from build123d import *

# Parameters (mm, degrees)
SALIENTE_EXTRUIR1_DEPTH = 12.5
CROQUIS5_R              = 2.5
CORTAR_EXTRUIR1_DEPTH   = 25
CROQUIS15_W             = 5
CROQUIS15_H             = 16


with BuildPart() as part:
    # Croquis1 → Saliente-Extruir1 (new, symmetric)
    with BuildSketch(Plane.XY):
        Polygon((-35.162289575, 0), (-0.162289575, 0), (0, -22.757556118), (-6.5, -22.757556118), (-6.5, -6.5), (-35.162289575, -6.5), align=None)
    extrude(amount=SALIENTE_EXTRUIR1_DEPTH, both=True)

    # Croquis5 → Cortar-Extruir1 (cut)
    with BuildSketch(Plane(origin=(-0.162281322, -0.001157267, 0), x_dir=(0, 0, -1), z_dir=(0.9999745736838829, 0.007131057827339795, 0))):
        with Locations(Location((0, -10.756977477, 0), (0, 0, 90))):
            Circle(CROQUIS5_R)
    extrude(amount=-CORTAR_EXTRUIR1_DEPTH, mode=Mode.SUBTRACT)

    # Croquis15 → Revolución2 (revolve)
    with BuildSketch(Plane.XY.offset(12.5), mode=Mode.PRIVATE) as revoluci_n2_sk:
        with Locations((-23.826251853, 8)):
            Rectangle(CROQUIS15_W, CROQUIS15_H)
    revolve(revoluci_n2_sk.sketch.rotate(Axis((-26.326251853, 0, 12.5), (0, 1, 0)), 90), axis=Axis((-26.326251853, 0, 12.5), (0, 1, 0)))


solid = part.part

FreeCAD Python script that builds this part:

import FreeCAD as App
import Part
import Sketcher
from FreeCAD import Vector

doc = App.newDocument("Part")
params = doc.addObject("Spreadsheet::Sheet", "Params")
for row, (alias, value) in enumerate([
    ("sketch1_width", "35 mm"),
    ("sketch1_width2", "6.5 mm"),
    ("pad1_length", "25 mm"),
    ("sketch2_diameter", "5 mm"),
    ("pocket1_length", "25 mm"),
    ("sketch3_width", "5 mm"),
    ("sketch3_height", "16 mm"),
    ("revolution_angle", "360 deg"),
], start=1):
    params.set(f"A{row}", alias)
    params.set(f"B{row}", "=" + value)
    params.setAlias(f"B{row}", alias)

body = doc.addObject("PartDesign::Body", "Body")

sketch1 = body.newObject("Sketcher::SketchObject", "Sketch")
sketch1.AttachmentSupport = (doc.getObject("XY_Plane"), [""])
sketch1.MapMode = "FlatFace"
sketch1.addGeometry(Part.LineSegment(Vector(0, 0, 0), Vector(-35, 0, 0)), False)
sketch1.addGeometry(Part.LineSegment(Vector(-35, 0, 0), Vector(-35, -6, 0)), False)
sketch1.addGeometry(Part.LineSegment(Vector(-35, -6, 0), Vector(-6, -6, 0)), False)
sketch1.addGeometry(Part.LineSegment(Vector(-6, -6, 0), Vector(-6, -23, 0)), False)
sketch1.addGeometry(Part.LineSegment(Vector(-6, -23, 0), Vector(0, -23, 0)), False)
sketch1.addGeometry(Part.LineSegment(Vector(0, -23, 0), Vector(0, 0, 0)), False)
sketch1.addConstraint(Sketcher.Constraint("Coincident", 0, 2, 1, 1))
sketch1.addConstraint(Sketcher.Constraint("Coincident", 1, 2, 2, 1))
sketch1.addConstraint(Sketcher.Constraint("Coincident", 2, 2, 3, 1))
sketch1.addConstraint(Sketcher.Constraint("Coincident", 3, 2, 4, 1))
sketch1.addConstraint(Sketcher.Constraint("Coincident", 4, 2, 5, 1))
sketch1.addConstraint(Sketcher.Constraint("Coincident", 5, 2, 0, 1))
sketch1.addConstraint(Sketcher.Constraint("Horizontal", 0))
sketch1.addConstraint(Sketcher.Constraint("Vertical", 1))
sketch1.addConstraint(Sketcher.Constraint("Horizontal", 2))
sketch1.addConstraint(Sketcher.Constraint("Vertical", 3))
sketch1.addConstraint(Sketcher.Constraint("Horizontal", 4))
sketch1.addConstraint(Sketcher.Constraint("PointOnObject", 0, 2, -1))
sketch1.addConstraint(Sketcher.Constraint("PointOnObject", 4, 2, -2))
sketch1.addConstraint(Sketcher.Constraint("Equal", 4, 1))
sketch1.addConstraint(Sketcher.Constraint("DistanceX", 0, 2, 0, 1, 35.0))
sketch1.addConstraint(Sketcher.Constraint("DistanceX", 4, 1, 4, 2, 6.5))
sketch1.addConstraint(Sketcher.Constraint("DistanceX", 2, 1, 2, 2, 28.66229))
sketch1.addConstraint(Sketcher.Constraint("DistanceY", 3, 2, 3, 1, 16.257556))
sketch1.setExpression("Constraints[14]", "Params.sketch1_width")
sketch1.setExpression("Constraints[15]", "Params.sketch1_width2")
pad1 = body.newObject("PartDesign::Pad", "Pad")
pad1.Profile = sketch1
pad1.setExpression("Length", "Params.pad1_length")
pad1.Midplane = True

sketch2 = body.newObject("Sketcher::SketchObject", "Sketch001")
sketch2.Placement = App.Placement(Vector(-0.162281, -0.001157, 0), App.Rotation(Vector(0, 0, -1), Vector(-0.007131058, 0.999974574, 0), Vector(0.999974574, 0.007131058, 0), "ZXY"))
sketch2.addGeometry(Part.Circle(Vector(0, -10.8, 0), Vector(0, 0, 1), 2.5), False)
sketch2.addConstraint(Sketcher.Constraint("PointOnObject", 0, 3, -2))
sketch2.addConstraint(Sketcher.Constraint("Diameter", 0, 5.0))
sketch2.addConstraint(Sketcher.Constraint("DistanceY", 0, 3, -1, 1, 10.756977))
sketch2.setExpression("Constraints[1]", "Params.sketch2_diameter")
pocket1 = body.newObject("PartDesign::Pocket", "Pocket")
pocket1.Profile = sketch2
pocket1.setExpression("Length", "Params.pocket1_length")

sketch3 = body.newObject("Sketcher::SketchObject", "Sketch002")
sketch3.AttachmentSupport = (doc.getObject("XY_Plane"), [""])
sketch3.MapMode = "FlatFace"
sketch3.AttachmentOffset = App.Placement(Vector(0, 0, 12.5), App.Rotation())
sketch3.addGeometry(Part.LineSegment(Vector(-26, 16, 0), Vector(-26, 0, 0)), False)
sketch3.addGeometry(Part.LineSegment(Vector(-26, 0, 0), Vector(-21, 0, 0)), False)
sketch3.addGeometry(Part.LineSegment(Vector(-21, 0, 0), Vector(-21, 16, 0)), False)
sketch3.addGeometry(Part.LineSegment(Vector(-21, 16, 0), Vector(-26, 16, 0)), False)
sketch3.addGeometry(Part.LineSegment(Vector(-26, 0, 0), Vector(-26, 16, 0)), True)
sketch3.addConstraint(Sketcher.Constraint("Coincident", 0, 2, 1, 1))
sketch3.addConstraint(Sketcher.Constraint("Coincident", 1, 2, 2, 1))
sketch3.addConstraint(Sketcher.Constraint("Coincident", 2, 2, 3, 1))
sketch3.addConstraint(Sketcher.Constraint("Coincident", 3, 2, 0, 1))
sketch3.addConstraint(Sketcher.Constraint("Vertical", 0))
sketch3.addConstraint(Sketcher.Constraint("Horizontal", 1))
sketch3.addConstraint(Sketcher.Constraint("Vertical", 2))
sketch3.addConstraint(Sketcher.Constraint("Horizontal", 3))
sketch3.addConstraint(Sketcher.Constraint("Vertical", 4))
sketch3.addConstraint(Sketcher.Constraint("Coincident", 4, 1, 0, 2))
sketch3.addConstraint(Sketcher.Constraint("PointOnObject", 0, 2, -1))
sketch3.addConstraint(Sketcher.Constraint("Horizontal", 2, 2, 4, 2))
sketch3.addConstraint(Sketcher.Constraint("DistanceX", 1, 1, 1, 2, 5.0))
sketch3.addConstraint(Sketcher.Constraint("DistanceY", 0, 2, 0, 1, 16.0))
sketch3.addConstraint(Sketcher.Constraint("DistanceX", 0, 2, -1, 1, 26.326252))
sketch3.setExpression("Constraints[12]", "Params.sketch3_width")
sketch3.setExpression("Constraints[13]", "Params.sketch3_height")
revolution = body.newObject("PartDesign::Revolution", "Revolution")
revolution.Profile = sketch3
revolution.ReferenceAxis = (sketch3, ["Axis0"])
revolution.setExpression("Angle", "Params.revolution_angle")

doc.recompute()
